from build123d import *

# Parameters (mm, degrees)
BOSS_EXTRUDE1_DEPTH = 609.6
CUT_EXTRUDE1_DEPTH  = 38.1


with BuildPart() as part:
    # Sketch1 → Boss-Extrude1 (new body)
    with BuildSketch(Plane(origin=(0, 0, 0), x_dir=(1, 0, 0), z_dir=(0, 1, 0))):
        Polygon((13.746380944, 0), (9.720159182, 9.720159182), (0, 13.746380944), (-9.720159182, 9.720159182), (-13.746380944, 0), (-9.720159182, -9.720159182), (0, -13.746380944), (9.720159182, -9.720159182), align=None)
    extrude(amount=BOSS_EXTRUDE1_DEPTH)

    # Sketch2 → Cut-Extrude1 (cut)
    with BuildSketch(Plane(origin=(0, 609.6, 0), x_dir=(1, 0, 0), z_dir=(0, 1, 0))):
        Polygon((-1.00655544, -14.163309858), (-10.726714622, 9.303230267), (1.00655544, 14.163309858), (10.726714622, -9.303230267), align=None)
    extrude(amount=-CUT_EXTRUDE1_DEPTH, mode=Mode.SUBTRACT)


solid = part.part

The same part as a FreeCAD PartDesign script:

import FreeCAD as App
import Part
import Sketcher
from FreeCAD import Vector
Q = App.Units.Quantity

doc = App.newDocument("Part")
body = doc.addObject("PartDesign::Body", "Body")

sketch1 = body.newObject("Sketcher::SketchObject", "Sketch")
sketch1.AttachmentSupport = (doc.getObject("XZ_Plane"), [""])
sketch1.MapMode = "FlatFace"
sketch1.addGeometry(Part.LineSegment(Vector(14, 0, 0), Vector(10, -10, 0)), False)
sketch1.addGeometry(Part.LineSegment(Vector(10, -10, 0), Vector(0, -14, 0)), False)
sketch1.addGeometry(Part.LineSegment(Vector(0, -14, 0), Vector(-10, -10, 0)), False)
sketch1.addGeometry(Part.LineSegment(Vector(-10, -10, 0), Vector(-14, 0, 0)), False)
sketch1.addGeometry(Part.LineSegment(Vector(-14, 0, 0), Vector(-10, 10, 0)), False)
sketch1.addGeometry(Part.LineSegment(Vector(-10, 10, 0), Vector(0, 14, 0)), False)
sketch1.addGeometry(Part.LineSegment(Vector(0, 14, 0), Vector(10, 10, 0)), False)
sketch1.addGeometry(Part.LineSegment(Vector(10, 10, 0), Vector(14, 0, 0)), False)
sketch1.addConstraint(Sketcher.Constraint("Coincident", 0, 2, 1, 1))
sketch1.addConstraint(Sketcher.Constraint("Coincident", 1, 2, 2, 1))
sketch1.addConstraint(Sketcher.Constraint("Coincident", 2, 2, 3, 1))
sketch1.addConstraint(Sketcher.Constraint("Coincident", 3, 2, 4, 1))
sketch1.addConstraint(Sketcher.Constraint("Coincident", 4, 2, 5, 1))
sketch1.addConstraint(Sketcher.Constraint("Coincident", 5, 2, 6, 1))
sketch1.addConstraint(Sketcher.Constraint("Coincident", 6, 2, 7, 1))
sketch1.addConstraint(Sketcher.Constraint("Coincident", 7, 2, 0, 1))
sketch1.addConstraint(Sketcher.Constraint("Symmetric", 0, 2, 4, 2, -1, 1))
sketch1.addConstraint(Sketcher.Constraint("Symmetric", 1, 2, 5, 2, -1, 1))
sketch1.addConstraint(Sketcher.Constraint("Symmetric", 2, 2, 6, 2, -1, 1))
sketch1.addConstraint(Sketcher.Constraint("Symmetric", 3, 2, 7, 2, -1, 1))
sketch1.addConstraint(Sketcher.Constraint("Symmetric", 0, 2, 2, 2, -2))
sketch1.addConstraint(Sketcher.Constraint("PointOnObject", 1, 2, -2))
sketch1.addConstraint(Sketcher.Constraint("PointOnObject", 3, 2, -1))
sketch1.addConstraint(Sketcher.Constraint("Perpendicular", 0, 2))
sketch1.addConstraint(Sketcher.Constraint("Equal", 0, 1))
sketch1.addConstraint(Sketcher.Constraint("Angle", 0, Q("-112.5 deg")))
sketch1.addConstraint(Sketcher.Constraint("DistanceX", -1, 1, 0, 2, 9.720159))
pad1 = body.newObject("PartDesign::Pad", "Pad")
pad1.Profile = sketch1
pad1.Length = Q("24 in")
pad1.Reversed = True

sketch2 = body.newObject("Sketcher::SketchObject", "Sketch001")
sketch2.AttachmentSupport = (doc.getObject("XZ_Plane"), [""])
sketch2.MapMode = "FlatFace"
sketch2.AttachmentOffset = App.Placement(Vector(0, 0, -24 * 25.4), App.Rotation())
sketch2.addGeometry(Part.LineSegment(Vector(-11, -9, 0), Vector(-1, 14, 0)), False)
sketch2.addGeometry(Part.LineSegment(Vector(-1, 14, 0), Vector(11, 9, 0)), False)
sketch2.addGeometry(Part.LineSegment(Vector(11, 9, 0), Vector(1, -14, 0)), False)
sketch2.addGeometry(Part.LineSegment(Vector(1, -14, 0), Vector(-11, -9, 0)), False)
sketch2.addConstraint(Sketcher.Constraint("Coincident", 0, 2, 1, 1))
sketch2.addConstraint(Sketcher.Constraint("Coincident", 1, 2, 2, 1))
sketch2.addConstraint(Sketcher.Constraint("Coincident", 2, 2, 3, 1))
sketch2.addConstraint(Sketcher.Constraint("Coincident", 3, 2, 0, 1))
sketch2.addConstraint(Sketcher.Constraint("Symmetric", 0, 2, 2, 2, -1, 1))
sketch2.addConstraint(Sketcher.Constraint("Symmetric", 1, 2, 3, 2, -1, 1))
sketch2.addConstraint(Sketcher.Constraint("Perpendicular", 0, 1))
sketch2.addConstraint(Sketcher.Constraint("Distance", 0, Q("1 in")))
sketch2.addConstraint(Sketcher.Constraint("Distance", 1, Q("0.5 in")))
sketch2.addConstraint(Sketcher.Constraint("Angle", 0, Q("67.5 deg")))
pocket1 = body.newObject("PartDesign::Pocket", "Pocket")
pocket1.Profile = sketch2
pocket1.Length = Q("1.5 in")
pocket1.Reversed = True

doc.recompute()
